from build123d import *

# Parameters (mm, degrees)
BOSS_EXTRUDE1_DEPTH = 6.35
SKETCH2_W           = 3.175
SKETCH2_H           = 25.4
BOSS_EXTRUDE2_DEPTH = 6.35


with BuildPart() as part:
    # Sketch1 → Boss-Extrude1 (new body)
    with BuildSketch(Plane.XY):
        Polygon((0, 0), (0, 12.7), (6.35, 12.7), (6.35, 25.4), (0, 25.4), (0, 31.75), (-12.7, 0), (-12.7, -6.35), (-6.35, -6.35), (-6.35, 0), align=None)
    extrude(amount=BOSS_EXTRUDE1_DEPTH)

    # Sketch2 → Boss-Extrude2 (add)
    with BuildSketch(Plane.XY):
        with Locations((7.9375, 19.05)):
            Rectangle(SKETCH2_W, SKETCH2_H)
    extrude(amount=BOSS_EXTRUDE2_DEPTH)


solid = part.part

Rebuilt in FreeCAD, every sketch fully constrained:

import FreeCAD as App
import Part
import Sketcher
from FreeCAD import Vector
Q = App.Units.Quantity

doc = App.newDocument("Part")
body = doc.addObject("PartDesign::Body", "Body")

sketch1 = body.newObject("Sketcher::SketchObject", "Sketch")
sketch1.AttachmentSupport = (doc.getObject("XY_Plane"), [""])
sketch1.MapMode = "FlatFace"
sketch1.addGeometry(Part.LineSegment(Vector(0, 0, 0), Vector(0, 12.7, 0)), False)
sketch1.addGeometry(Part.LineSegment(Vector(0, 12.7, 0), Vector(6.35, 12.7, 0)), False)
sketch1.addGeometry(Part.LineSegment(Vector(6.35, 12.7, 0), Vector(6.35, 25.4, 0)), False)
sketch1.addGeometry(Part.LineSegment(Vector(6.35, 25.4, 0), Vector(0, 25.4, 0)), False)
sketch1.addGeometry(Part.LineSegment(Vector(0, 25.4, 0), Vector(0, 31.75, 0)), False)
sketch1.addGeometry(Part.LineSegment(Vector(0, 31.75, 0), Vector(-12.7, 0, 0)), False)
sketch1.addGeometry(Part.LineSegment(Vector(-12.7, 0, 0), Vector(-12.7, -6.35, 0)), False)
sketch1.addGeometry(Part.LineSegment(Vector(-12.7, -6.35, 0), Vector(-6.35, -6.35, 0)), False)
sketch1.addGeometry(Part.LineSegment(Vector(-6.35, -6.35, 0), Vector(-6.35, 0, 0)), False)
sketch1.addGeometry(Part.LineSegment(Vector(-6.35, 0, 0), Vector(0, 0, 0)), False)
sketch1.addConstraint(Sketcher.Constraint("Coincident", 0, 2, 1, 1))
sketch1.addConstraint(Sketcher.Constraint("Coincident", 1, 2, 2, 1))
sketch1.addConstraint(Sketcher.Constraint("Coincident", 2, 2, 3, 1))
sketch1.addConstraint(Sketcher.Constraint("Coincident", 3, 2, 4, 1))
sketch1.addConstraint(Sketcher.Constraint("Coincident", 4, 2, 5, 1))
sketch1.addConstraint(Sketcher.Constraint("Coincident", 5, 2, 6, 1))
sketch1.addConstraint(Sketcher.Constraint("Coincident", 6, 2, 7, 1))
sketch1.addConstraint(Sketcher.Constraint("Coincident", 7, 2, 8, 1))
sketch1.addConstraint(Sketcher.Constraint("Coincident", 8, 2, 9, 1))
sketch1.addConstraint(Sketcher.Constraint("Coincident", 9, 2, 0, 1))
sketch1.addConstraint(Sketcher.Constraint("Vertical", 0))
sketch1.addConstraint(Sketcher.Constraint("Horizontal", 1))
sketch1.addConstraint(Sketcher.Constraint("Vertical", 2))
sketch1.addConstraint(Sketcher.Constraint("Horizontal", 3))
sketch1.addConstraint(Sketcher.Constraint("Vertical", 4))
sketch1.addConstraint(Sketcher.Constraint("Vertical", 6))
sketch1.addConstraint(Sketcher.Constraint("Horizontal", 7))
sketch1.addConstraint(Sketcher.Constraint("Vertical", 8))
sketch1.addConstraint(Sketcher.Constraint("Horizontal", 9))
sketch1.addConstraint(Sketcher.Constraint("Coincident", 9, 2, -1, 1))
sketch1.addConstraint(Sketcher.Constraint("PointOnObject", 3, 2, -2))
sketch1.addConstraint(Sketcher.Constraint("PointOnObject", 5, 2, -1))
sketch1.addConstraint(Sketcher.Constraint("Equal", 3, 7))
sketch1.addConstraint(Sketcher.Constraint("Equal", 7, 9))
sketch1.addConstraint(Sketcher.Constraint("Equal", 0, 2))
sketch1.addConstraint(Sketcher.Constraint("Equal", 9, 4))
sketch1.addConstraint(Sketcher.Constraint("Equal", 4, 6))
sketch1.addConstraint(Sketcher.Constraint("DistanceY", 0, 1, 0, 2, Q("0.5 in")))
sketch1.addConstraint(Sketcher.Constraint("DistanceX", 1, 1, 1, 2, Q("0.25 in")))
pad1 = body.newObject("PartDesign::Pad", "Pad")
pad1.Profile = sketch1
pad1.Length = Q("0.25 in")

sketch2 = body.newObject("Sketcher::SketchObject", "Sketch001")
sketch2.AttachmentSupport = (doc.getObject("XY_Plane"), [""])
sketch2.MapMode = "FlatFace"
sketch2.addGeometry(Part.LineSegment(Vector(6.35, 31.75, 0), Vector(6.35, 6.35, 0)), False)
sketch2.addGeometry(Part.LineSegment(Vector(6.35, 6.35, 0), Vector(9.525, 6.35, 0)), False)
sketch2.addGeometry(Part.LineSegment(Vector(9.525, 6.35, 0), Vector(9.525, 31.75, 0)), False)
sketch2.addGeometry(Part.LineSegment(Vector(9.525, 31.75, 0), Vector(6.35, 31.75, 0)), False)
sketch2.addConstraint(Sketcher.Constraint("Coincident", 0, 2, 1, 1))
sketch2.addConstraint(Sketcher.Constraint("Coincident", 1, 2, 2, 1))
sketch2.addConstraint(Sketcher.Constraint("Coincident", 2, 2, 3, 1))
sketch2.addConstraint(Sketcher.Constraint("Coincident", 3, 2, 0, 1))
sketch2.addConstraint(Sketcher.Constraint("Vertical", 0))
sketch2.addConstraint(Sketcher.Constraint("Horizontal", 1))
sketch2.addConstraint(Sketcher.Constraint("Vertical", 2))
sketch2.addConstraint(Sketcher.Constraint("Horizontal", 3))
sketch2.addConstraint(Sketcher.Constraint("DistanceY", 0, 2, 0, 1, Q("1 in")))
sketch2.addConstraint(Sketcher.Constraint("DistanceX", 1, 1, 1, 2, Q("0.125 in")))
sketch2.addConstraint(Sketcher.Constraint("DistanceX", -1, 1, 0, 2, Q("0.25 in")))
sketch2.addConstraint(Sketcher.Constraint("DistanceY", -1, 1, 0, 2, Q("0.25 in")))
pad2 = body.newObject("PartDesign::Pad", "Pad001")
pad2.Profile = sketch2
pad2.Length = Q("0.25 in")

doc.recompute()
